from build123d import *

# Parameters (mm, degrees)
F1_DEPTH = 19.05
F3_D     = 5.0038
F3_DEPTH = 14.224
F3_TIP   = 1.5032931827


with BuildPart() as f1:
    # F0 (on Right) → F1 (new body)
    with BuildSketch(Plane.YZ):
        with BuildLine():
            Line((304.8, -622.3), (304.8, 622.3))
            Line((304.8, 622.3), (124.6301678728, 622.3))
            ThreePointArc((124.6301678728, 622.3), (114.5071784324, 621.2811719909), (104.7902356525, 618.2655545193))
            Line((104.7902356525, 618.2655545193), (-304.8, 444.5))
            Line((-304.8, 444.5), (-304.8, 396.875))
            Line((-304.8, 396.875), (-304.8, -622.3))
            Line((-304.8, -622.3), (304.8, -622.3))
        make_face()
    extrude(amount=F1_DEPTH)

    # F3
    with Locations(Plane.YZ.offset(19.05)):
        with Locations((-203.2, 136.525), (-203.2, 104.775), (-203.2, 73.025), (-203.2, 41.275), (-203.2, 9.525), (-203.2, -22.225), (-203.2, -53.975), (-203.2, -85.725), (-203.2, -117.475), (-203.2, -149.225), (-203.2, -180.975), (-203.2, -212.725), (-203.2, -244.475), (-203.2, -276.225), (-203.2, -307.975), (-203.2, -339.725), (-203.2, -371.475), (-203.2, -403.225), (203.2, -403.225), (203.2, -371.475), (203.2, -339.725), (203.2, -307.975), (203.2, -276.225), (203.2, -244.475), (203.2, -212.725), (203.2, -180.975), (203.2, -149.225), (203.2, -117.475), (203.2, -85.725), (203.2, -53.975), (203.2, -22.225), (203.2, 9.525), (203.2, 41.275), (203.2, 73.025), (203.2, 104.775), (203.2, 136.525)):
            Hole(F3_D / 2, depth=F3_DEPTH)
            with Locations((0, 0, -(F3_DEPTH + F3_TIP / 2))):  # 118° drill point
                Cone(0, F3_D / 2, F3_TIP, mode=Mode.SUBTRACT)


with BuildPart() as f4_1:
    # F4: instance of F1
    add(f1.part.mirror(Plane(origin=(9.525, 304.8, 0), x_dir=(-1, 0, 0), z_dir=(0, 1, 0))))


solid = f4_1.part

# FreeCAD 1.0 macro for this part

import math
import FreeCAD as App
import Part
import Sketcher
from FreeCAD import Vector
Q = App.Units.Quantity

doc = App.newDocument("Part")
body = doc.addObject("PartDesign::Body", "Body")

sketch1 = body.newObject("Sketcher::SketchObject", "Sketch")
sketch1.AttachmentSupport = (doc.getObject("YZ_Plane"), [""])
sketch1.MapMode = "FlatFace"
sketch1.addGeometry([
    Part.LineSegment(Vector(305, -622, 0), Vector(305, 622, 0)),
    Part.LineSegment(Vector(305, 622, 0), Vector(125, 622, 0)),
    Part.ArcOfCircle(Part.Circle(Vector(125, 571, 0), Vector(0, 0, 1), 51), math.radians(90), math.radians(113)),
    Part.LineSegment(Vector(105, 618, 0), Vector(-305, 444, 0)),
    Part.LineSegment(Vector(-305, 444, 0), Vector(-305, -622, 0)),
    Part.LineSegment(Vector(-305, -622, 0), Vector(305, -622, 0)),
], False)
sketch1.addConstraint([
    Sketcher.Constraint("Coincident", 0, 2, 1, 1),
    Sketcher.Constraint("Tangent", 1, 2, 2, 1),
    Sketcher.Constraint("Tangent", 2, 2, 3, 1),
    Sketcher.Constraint("Coincident", 3, 2, 4, 1),
    Sketcher.Constraint("Coincident", 4, 2, 5, 1),
    Sketcher.Constraint("Coincident", 5, 2, 0, 1),
    Sketcher.Constraint("Vertical", 0),
    Sketcher.Constraint("Horizontal", 1),
    Sketcher.Constraint("Vertical", 4),
    Sketcher.Constraint("Horizontal", 5),
    Sketcher.Constraint("Symmetric", 0, 2, 4, 2, -1, 1),
    Sketcher.Constraint("Radius", 2, Q("2 in")),
    Sketcher.Constraint("DistanceX", 5, 1, 5, 2, Q("24 in")),
    Sketcher.Constraint("DistanceY", 0, 1, 0, 2, Q("49 in")),
    Sketcher.Constraint("DistanceY", 4, 2, 4, 1, Q("42 in")),
    Sketcher.Constraint("DistanceX", -1, 1, 2, 2, Q("4.1255998 in")),
])
pad1 = body.newObject("PartDesign::Pad", "Pad")
pad1.Profile = sketch1
pad1.Length = Q("0.75 in")

sketch2 = body.newObject("Sketcher::SketchObject", "Sketch001")
sketch2.AttachmentSupport = (doc.getObject("YZ_Plane"), [""])
sketch2.MapMode = "FlatFace"
sketch2.AttachmentOffset = App.Placement(Vector(0, 0, 0.75 * 25.4), App.Rotation())
sketch2.addGeometry([
    Part.Circle(Vector(-203.2, 136.5, 0), Vector(0, 0, 1), 2.5),
    Part.Circle(Vector(-203.2, 104.8, 0), Vector(0, 0, 1), 2.5),
    Part.Circle(Vector(-203.2, 73, 0), Vector(0, 0, 1), 2.5),
    Part.Circle(Vector(-203.2, 41.3, 0), Vector(0, 0, 1), 2.5),
    Part.Circle(Vector(-203.2, 9.5, 0), Vector(0, 0, 1), 2.5),
    Part.Circle(Vector(-203.2, -22.2, 0), Vector(0, 0, 1), 2.5),
    Part.Circle(Vector(-203.2, -54, 0), Vector(0, 0, 1), 2.5),
    Part.Circle(Vector(-203.2, -85.7, 0), Vector(0, 0, 1), 2.5),
    Part.Circle(Vector(-203.2, -117.5, 0), Vector(0, 0, 1), 2.5),
    Part.Circle(Vector(-203.2, -149.2, 0), Vector(0, 0, 1), 2.5),
    Part.Circle(Vector(-203.2, -181, 0), Vector(0, 0, 1), 2.5),
    Part.Circle(Vector(-203.2, -212.7, 0), Vector(0, 0, 1), 2.5),
    Part.Circle(Vector(-203.2, -244.5, 0), Vector(0, 0, 1), 2.5),
    Part.Circle(Vector(-203.2, -276.2, 0), Vector(0, 0, 1), 2.5),
    Part.Circle(Vector(-203.2, -308, 0), Vector(0, 0, 1), 2.5),
    Part.Circle(Vector(-203.2, -339.7, 0), Vector(0, 0, 1), 2.5),
    Part.Circle(Vector(-203.2, -371.5, 0), Vector(0, 0, 1), 2.5),
    Part.Circle(Vector(-203.2, -403.2, 0), Vector(0, 0, 1), 2.5),
    Part.Circle(Vector(203.2, -403.2, 0), Vector(0, 0, 1), 2.5),
    Part.Circle(Vector(203.2, -371.5, 0), Vector(0, 0, 1), 2.5),
    Part.Circle(Vector(203.2, -339.7, 0), Vector(0, 0, 1), 2.5),
    Part.Circle(Vector(203.2, -308, 0), Vector(0, 0, 1), 2.5),
    Part.Circle(Vector(203.2, -276.2, 0), Vector(0, 0, 1), 2.5),
    Part.Circle(Vector(203.2, -244.5, 0), Vector(0, 0, 1), 2.5),
    Part.Circle(Vector(203.2, -212.7, 0), Vector(0, 0, 1), 2.5),
    Part.Circle(Vector(203.2, -181, 0), Vector(0, 0, 1), 2.5),
    Part.Circle(Vector(203.2, -149.2, 0), Vector(0, 0, 1), 2.5),
    Part.Circle(Vector(203.2, -117.5, 0), Vector(0, 0, 1), 2.5),
    Part.Circle(Vector(203.2, -85.7, 0), Vector(0, 0, 1), 2.5),
    Part.Circle(Vector(203.2, -54, 0), Vector(0, 0, 1), 2.5),
    Part.Circle(Vector(203.2, -22.2, 0), Vector(0, 0, 1), 2.5),
    Part.Circle(Vector(203.2, 9.5, 0), Vector(0, 0, 1), 2.5),
    Part.Circle(Vector(203.2, 41.3, 0), Vector(0, 0, 1), 2.5),
    Part.Circle(Vector(203.2, 73, 0), Vector(0, 0, 1), 2.5),
    Part.Circle(Vector(203.2, 104.8, 0), Vector(0, 0, 1), 2.5),
    Part.Circle(Vector(203.2, 136.5, 0), Vector(0, 0, 1), 2.5),
], False)
sketch2.addConstraint([
    Sketcher.Constraint("Equal", 0, 1),
    Sketcher.Constraint("Equal", 1, 2),
    Sketcher.Constraint("Equal", 2, 3),
    Sketcher.Constraint("Equal", 3, 4),
    Sketcher.Constraint("Equal", 4, 5),
    Sketcher.Constraint("Equal", 5, 6),
    Sketcher.Constraint("Equal", 6, 7),
    Sketcher.Constraint("Equal", 7, 8),
    Sketcher.Constraint("Equal", 8, 9),
    Sketcher.Constraint("Equal", 9, 10),
    Sketcher.Constraint("Equal", 10, 11),
    Sketcher.Constraint("Equal", 11, 12),
    Sketcher.Constraint("Equal", 12, 13),
    Sketcher.Constraint("Equal", 13, 14),
    Sketcher.Constraint("Equal", 14, 15),
    Sketcher.Constraint("Equal", 15, 16),
    Sketcher.Constraint("Equal", 16, 17),
    Sketcher.Constraint("Equal", 17, 18),
    Sketcher.Constraint("Equal", 18, 19),
    Sketcher.Constraint("Equal", 19, 20),
    Sketcher.Constraint("Equal", 20, 21),
    Sketcher.Constraint("Equal", 21, 22),
    Sketcher.Constraint("Equal", 22, 23),
    Sketcher.Constraint("Equal", 23, 24),
    Sketcher.Constraint("Equal", 24, 25),
    Sketcher.Constraint("Equal", 25, 26),
    Sketcher.Constraint("Equal", 26, 27),
    Sketcher.Constraint("Equal", 27, 28),
    Sketcher.Constraint("Equal", 28, 29),
    Sketcher.Constraint("Equal", 29, 30),
    Sketcher.Constraint("Equal", 30, 31),
    Sketcher.Constraint("Equal", 31, 32),
    Sketcher.Constraint("Equal", 32, 33),
    Sketcher.Constraint("Equal", 33, 34),
    Sketcher.Constraint("Equal", 34, 35),
    Sketcher.Constraint("Symmetric", 17, 3, 18, 3, -2),
    Sketcher.Constraint("Symmetric", 16, 3, 19, 3, -2),
    Sketcher.Constraint("Symmetric", 15, 3, 20, 3, -2),
    Sketcher.Constraint("Symmetric", 14, 3, 21, 3, -2),
    Sketcher.Constraint("Symmetric", 13, 3, 22, 3, -2),
    Sketcher.Constraint("Symmetric", 12, 3, 23, 3, -2),
    Sketcher.Constraint("Symmetric", 11, 3, 24, 3, -2),
    Sketcher.Constraint("Symmetric", 10, 3, 25, 3, -2),
    Sketcher.Constraint("Symmetric", 9, 3, 26, 3, -2),
    Sketcher.Constraint("Symmetric", 8, 3, 27, 3, -2),
    Sketcher.Constraint("Symmetric", 7, 3, 28, 3, -2),
    Sketcher.Constraint("Symmetric", 6, 3, 29, 3, -2),
    Sketcher.Constraint("Symmetric", 5, 3, 30, 3, -2),
    Sketcher.Constraint("Symmetric", 4, 3, 31, 3, -2),
    Sketcher.Constraint("Symmetric", 3, 3, 32, 3, -2),
    Sketcher.Constraint("Symmetric", 2, 3, 33, 3, -2),
    Sketcher.Constraint("Symmetric", 1, 3, 34, 3, -2),
    Sketcher.Constraint("Symmetric", 0, 3, 35, 3, -2),
    Sketcher.Constraint("Vertical", 0, 3, 1, 3),
    Sketcher.Constraint("Vertical", 1, 3, 2, 3),
    Sketcher.Constraint("Vertical", 2, 3, 3, 3),
    Sketcher.Constraint("Vertical", 3, 3, 4, 3),
    Sketcher.Constraint("Vertical", 4, 3, 5, 3),
    Sketcher.Constraint("Vertical", 5, 3, 6, 3),
    Sketcher.Constraint("Vertical", 6, 3, 7, 3),
    Sketcher.Constraint("Vertical", 7, 3, 8, 3),
    Sketcher.Constraint("Vertical", 8, 3, 9, 3),
    Sketcher.Constraint("Vertical", 9, 3, 10, 3),
    Sketcher.Constraint("Vertical", 10, 3, 11, 3),
    Sketcher.Constraint("Vertical", 11, 3, 12, 3),
    Sketcher.Constraint("Vertical", 12, 3, 13, 3),
    Sketcher.Constraint("Vertical", 13, 3, 14, 3),
    Sketcher.Constraint("Vertical", 14, 3, 15, 3),
    Sketcher.Constraint("Vertical", 15, 3, 16, 3),
    Sketcher.Constraint("Vertical", 16, 3, 17, 3),
    Sketcher.Constraint("Diameter", 0, Q("0.197 in")),
    Sketcher.Constraint("DistanceX", 0, 3, -1, 1, Q("8 in")),
    Sketcher.Constraint("DistanceY", 4, 3, 0, 3, Q("5 in")),
    Sketcher.Constraint("DistanceY", 5, 3, 1, 3, Q("5 in")),
    Sketcher.Constraint("DistanceY", 6, 3, 2, 3, Q("5 in")),
    Sketcher.Constraint("DistanceY", 7, 3, 3, 3, Q("5 in")),
    Sketcher.Constraint("DistanceY", 8, 3, 4, 3, Q("5 in")),
    Sketcher.Constraint("DistanceY", 9, 3, 5, 3, Q("5 in")),
    Sketcher.Constraint("DistanceY", 10, 3, 6, 3, Q("5 in")),
    Sketcher.Constraint("DistanceY", 11, 3, 7, 3, Q("5 in")),
    Sketcher.Constraint("DistanceY", 12, 3, 8, 3, Q("5 in")),
    Sketcher.Constraint("DistanceY", 13, 3, 9, 3, Q("5 in")),
    Sketcher.Constraint("DistanceY", 14, 3, 10, 3, Q("5 in")),
    Sketcher.Constraint("DistanceY", 15, 3, 11, 3, Q("5 in")),
    Sketcher.Constraint("DistanceY", 16, 3, 12, 3, Q("5 in")),
    Sketcher.Constraint("DistanceY", 17, 3, 13, 3, Q("5 in")),
    Sketcher.Constraint("DistanceY", 2, 3, 0, 3, Q("2.5 in")),
    Sketcher.Constraint("DistanceY", 3, 3, 1, 3, Q("2.5 in")),
    Sketcher.Constraint("DistanceY", 1, 3, 0, 3, Q("1.25 in")),
    Sketcher.Constraint("DistanceY", -1, 1, 0, 3, Q("5.375 in")),
])
doc.recompute()
hole = body.newObject("PartDesign::Hole", "Hole")
hole.Profile = sketch2
hole.ThreadType = "None"
hole.Diameter = Q("0.197 in")
hole.DepthType = "Dimension"
hole.Depth = Q("0.56 in")
hole.DrillPoint = "Angled"
hole.DrillPointAngle = 118
body2 = doc.addObject("PartDesign::Body", "Body001")
doc.recompute()

mirroring = doc.addObject("Part::Mirroring", "Mirroring")
mirroring.Source = body
mirroring.Base = Vector(9.525, 304.8, 0)
mirroring.Normal = Vector(0, 1, 0)
body2.BaseFeature = mirroring
doc.recompute()
body.Visibility = False
mirroring.Visibility = False

doc.recompute()
